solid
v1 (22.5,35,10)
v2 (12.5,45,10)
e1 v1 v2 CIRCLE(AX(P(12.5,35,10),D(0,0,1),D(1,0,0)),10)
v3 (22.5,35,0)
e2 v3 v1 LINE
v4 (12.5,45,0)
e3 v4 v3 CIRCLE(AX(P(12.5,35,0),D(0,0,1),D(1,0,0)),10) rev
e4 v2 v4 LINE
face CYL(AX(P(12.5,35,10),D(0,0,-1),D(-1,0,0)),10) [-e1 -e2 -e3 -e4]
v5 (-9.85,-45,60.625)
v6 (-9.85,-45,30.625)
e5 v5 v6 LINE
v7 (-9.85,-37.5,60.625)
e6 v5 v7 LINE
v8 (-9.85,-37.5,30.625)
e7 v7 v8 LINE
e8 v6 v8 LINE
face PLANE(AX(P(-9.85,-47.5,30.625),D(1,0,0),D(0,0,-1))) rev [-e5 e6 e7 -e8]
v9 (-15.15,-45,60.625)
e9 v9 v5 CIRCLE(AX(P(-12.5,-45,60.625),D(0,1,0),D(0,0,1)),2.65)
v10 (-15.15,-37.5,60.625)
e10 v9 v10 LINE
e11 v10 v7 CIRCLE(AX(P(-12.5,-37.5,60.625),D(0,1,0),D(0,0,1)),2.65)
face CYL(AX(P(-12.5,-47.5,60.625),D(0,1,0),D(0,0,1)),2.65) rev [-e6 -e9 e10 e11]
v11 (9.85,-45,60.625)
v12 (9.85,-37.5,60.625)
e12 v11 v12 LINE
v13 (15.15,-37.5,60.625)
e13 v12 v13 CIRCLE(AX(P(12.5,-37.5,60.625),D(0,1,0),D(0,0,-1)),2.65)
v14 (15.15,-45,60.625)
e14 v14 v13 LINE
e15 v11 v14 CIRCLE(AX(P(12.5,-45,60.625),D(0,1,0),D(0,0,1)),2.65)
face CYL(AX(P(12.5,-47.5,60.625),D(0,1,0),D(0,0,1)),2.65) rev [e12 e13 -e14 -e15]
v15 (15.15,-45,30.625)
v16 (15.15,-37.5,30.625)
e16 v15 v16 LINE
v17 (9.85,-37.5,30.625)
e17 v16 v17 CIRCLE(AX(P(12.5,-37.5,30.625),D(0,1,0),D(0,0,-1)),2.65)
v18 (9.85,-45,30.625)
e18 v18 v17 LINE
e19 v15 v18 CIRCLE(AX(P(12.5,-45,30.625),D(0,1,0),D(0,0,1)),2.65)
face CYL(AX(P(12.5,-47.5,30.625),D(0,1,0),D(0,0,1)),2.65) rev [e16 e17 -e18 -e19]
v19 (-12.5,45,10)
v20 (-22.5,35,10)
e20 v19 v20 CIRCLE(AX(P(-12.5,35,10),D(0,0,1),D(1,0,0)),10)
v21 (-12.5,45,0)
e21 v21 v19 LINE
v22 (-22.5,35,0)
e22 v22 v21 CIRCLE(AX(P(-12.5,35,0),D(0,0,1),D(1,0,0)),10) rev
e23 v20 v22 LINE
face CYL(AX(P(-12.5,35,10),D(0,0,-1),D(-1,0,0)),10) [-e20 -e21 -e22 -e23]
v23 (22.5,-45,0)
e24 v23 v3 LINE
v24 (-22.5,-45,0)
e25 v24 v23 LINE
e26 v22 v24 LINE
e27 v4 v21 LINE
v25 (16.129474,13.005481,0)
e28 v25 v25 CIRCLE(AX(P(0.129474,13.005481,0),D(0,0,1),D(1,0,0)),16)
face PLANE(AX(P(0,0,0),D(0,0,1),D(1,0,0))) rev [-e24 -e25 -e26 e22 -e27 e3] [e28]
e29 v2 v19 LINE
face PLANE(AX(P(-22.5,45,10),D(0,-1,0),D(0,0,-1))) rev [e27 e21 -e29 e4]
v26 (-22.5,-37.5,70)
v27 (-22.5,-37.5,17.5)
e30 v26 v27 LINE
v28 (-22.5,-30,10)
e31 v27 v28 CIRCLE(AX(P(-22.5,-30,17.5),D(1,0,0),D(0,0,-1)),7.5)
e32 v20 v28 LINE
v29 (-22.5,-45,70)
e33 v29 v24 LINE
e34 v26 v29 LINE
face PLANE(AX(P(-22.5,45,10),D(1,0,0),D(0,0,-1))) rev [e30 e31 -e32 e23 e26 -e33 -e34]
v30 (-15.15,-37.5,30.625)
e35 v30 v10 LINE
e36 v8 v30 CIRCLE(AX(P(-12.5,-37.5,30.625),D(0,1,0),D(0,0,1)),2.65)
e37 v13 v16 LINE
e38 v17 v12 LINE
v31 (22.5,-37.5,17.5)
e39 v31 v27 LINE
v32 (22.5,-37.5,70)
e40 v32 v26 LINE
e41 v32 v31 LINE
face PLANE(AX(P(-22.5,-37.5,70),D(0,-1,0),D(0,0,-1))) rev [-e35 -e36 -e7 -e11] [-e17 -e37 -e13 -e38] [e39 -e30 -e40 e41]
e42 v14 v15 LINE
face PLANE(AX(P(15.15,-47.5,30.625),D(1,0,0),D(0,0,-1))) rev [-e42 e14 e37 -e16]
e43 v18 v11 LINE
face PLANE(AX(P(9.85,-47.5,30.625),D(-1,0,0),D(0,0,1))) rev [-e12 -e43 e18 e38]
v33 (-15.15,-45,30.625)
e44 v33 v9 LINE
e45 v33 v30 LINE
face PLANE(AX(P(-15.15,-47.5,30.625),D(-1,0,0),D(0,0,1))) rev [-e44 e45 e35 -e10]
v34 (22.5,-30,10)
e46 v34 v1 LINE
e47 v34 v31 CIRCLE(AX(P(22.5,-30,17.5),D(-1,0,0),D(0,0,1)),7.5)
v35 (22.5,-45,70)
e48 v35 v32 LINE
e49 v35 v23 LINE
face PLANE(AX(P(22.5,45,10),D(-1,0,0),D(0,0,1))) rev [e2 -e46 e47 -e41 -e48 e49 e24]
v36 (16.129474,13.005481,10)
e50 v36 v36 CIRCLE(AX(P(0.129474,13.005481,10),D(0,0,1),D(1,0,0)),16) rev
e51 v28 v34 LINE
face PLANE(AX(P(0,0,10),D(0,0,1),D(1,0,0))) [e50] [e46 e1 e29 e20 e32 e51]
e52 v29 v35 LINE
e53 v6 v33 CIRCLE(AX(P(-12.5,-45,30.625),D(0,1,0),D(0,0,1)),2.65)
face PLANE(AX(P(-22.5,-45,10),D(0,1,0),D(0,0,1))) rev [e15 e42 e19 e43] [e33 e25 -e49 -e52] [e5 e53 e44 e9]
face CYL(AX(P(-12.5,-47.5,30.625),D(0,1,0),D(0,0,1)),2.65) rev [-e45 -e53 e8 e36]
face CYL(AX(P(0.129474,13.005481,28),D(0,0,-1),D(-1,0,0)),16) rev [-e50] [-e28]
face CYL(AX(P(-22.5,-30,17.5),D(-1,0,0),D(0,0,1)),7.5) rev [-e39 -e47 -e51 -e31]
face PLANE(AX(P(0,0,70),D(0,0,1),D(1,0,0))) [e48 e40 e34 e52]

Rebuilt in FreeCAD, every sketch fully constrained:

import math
import FreeCAD as App
import Part
import Sketcher
Q = App.Units.Quantity


def edges_at(feature, points):
    """Names of the edges that pass closest to the given points."""
    edges = feature.Shape.Edges
    near = lambda p: min(range(len(edges)), key=lambda i: edges[i].distToShape(Part.Vertex(*p))[0])
    return sorted({f"Edge{near(p) + 1}" for p in points})

doc = App.newDocument("Part")
body = doc.addObject("PartDesign::Body", "Body")

# Sketch on XY plane
sketch1 = doc.addObject("Sketcher::SketchObject", "Sketch")
body.addObject(sketch1)
sketch1.AttachmentSupport = (doc.XY_Plane, [""])
sketch1.MapMode = "FlatFace"
sketch1.addGeometry([
    Part.LineSegment(App.Vector(-22, 45, 0), App.Vector(-22, -45, 0)),
    Part.LineSegment(App.Vector(-22, -45, 0), App.Vector(22, -45, 0)),
    Part.LineSegment(App.Vector(22, -45, 0), App.Vector(22, 45, 0)),
    Part.LineSegment(App.Vector(22, 45, 0), App.Vector(-22, 45, 0)),
], False)
sketch1.addConstraint([
    Sketcher.Constraint("Coincident", 0, 2, 1, 1),
    Sketcher.Constraint("Coincident", 1, 2, 2, 1),
    Sketcher.Constraint("Coincident", 2, 2, 3, 1),
    Sketcher.Constraint("Coincident", 3, 2, 0, 1),
    Sketcher.Constraint("Vertical", 0),
    Sketcher.Constraint("Horizontal", 1),
    Sketcher.Constraint("Vertical", 2),
    Sketcher.Constraint("Horizontal", 3),
    Sketcher.Constraint("Symmetric", 0, 2, 2, 2, -1, 1),
    Sketcher.Constraint("DistanceX", 1, 1, 1, 2, Q("45 mm")),
    Sketcher.Constraint("DistanceY", 0, 2, 0, 1, Q("90 mm")),
])
pad1 = doc.addObject("PartDesign::Pad", "Pad")
body.addObject(pad1)
pad1.Profile = sketch1
pad1.Length = 10

# Sketch on XY plane
sketch2 = doc.addObject("Sketcher::SketchObject", "Sketch001")
body.addObject(sketch2)
sketch2.AttachmentSupport = (doc.XY_Plane, [""])
sketch2.MapMode = "FlatFace"
sketch2.addGeometry(Part.Circle(App.Vector(0, 13, 0), App.Vector(0, 0, 1), 16), False)
sketch2.addConstraint([
    Sketcher.Constraint("Diameter", 0, Q("32 mm")),
    Sketcher.Constraint("DistanceY", -1, 1, 0, 3, Q("13.005481 mm")),
    Sketcher.Constraint("DistanceX", -1, 1, 0, 3, Q("0.129474 mm")),
])
pocket1 = doc.addObject("PartDesign::Pocket", "Pocket")
body.addObject(pocket1)
pocket1.Profile = sketch2
pocket1.Length = 28
pocket1.Reversed = True
doc.recompute()

fillet = doc.addObject("PartDesign::Fillet", "Fillet")
body.addObject(fillet)
fillet.Base = (pocket1, edges_at(pocket1, [(-22.5, 45, 5), (22.5, 45, 5)]))
fillet.Radius = 10

# Sketch on XY plane
sketch3 = doc.addObject("Sketcher::SketchObject", "Sketch002")
body.addObject(sketch3)
sketch3.AttachmentSupport = (doc.XY_Plane, [""])
sketch3.MapMode = "FlatFace"
sketch3.AttachmentOffset = App.Placement(App.Vector(0, 0, 10), App.Rotation())
sketch3.addGeometry([
    Part.LineSegment(App.Vector(-22, -38, 0), App.Vector(-22, -45, 0)),
    Part.LineSegment(App.Vector(-22, -45, 0), App.Vector(22, -45, 0)),
    Part.LineSegment(App.Vector(22, -45, 0), App.Vector(22, -38, 0)),
    Part.LineSegment(App.Vector(22, -38, 0), App.Vector(-22, -38, 0)),
], False)
sketch3.addConstraint([
    Sketcher.Constraint("Coincident", 0, 2, 1, 1),
    Sketcher.Constraint("Coincident", 1, 2, 2, 1),
    Sketcher.Constraint("Coincident", 2, 2, 3, 1),
    Sketcher.Constraint("Coincident", 3, 2, 0, 1),
    Sketcher.Constraint("Vertical", 0),
    Sketcher.Constraint("Horizontal", 1),
    Sketcher.Constraint("Vertical", 2),
    Sketcher.Constraint("Horizontal", 3),
    Sketcher.Constraint("DistanceX", 1, 1, 1, 2, Q("45 mm")),
    Sketcher.Constraint("DistanceY", 0, 2, 0, 1, Q("7.5 mm")),
    Sketcher.Constraint("DistanceY", 0, 2, -1, 1, Q("45 mm")),
    Sketcher.Constraint("DistanceX", 0, 2, -1, 1, Q("22.5 mm")),
])
pad2 = doc.addObject("PartDesign::Pad", "Pad001")
body.addObject(pad2)
pad2.Profile = sketch3
pad2.Length = 60
doc.recompute()

fillet2 = doc.addObject("PartDesign::Fillet", "Fillet001")
body.addObject(fillet2)
fillet2.Base = (pad2, edges_at(pad2, [(0, -37.5, 10)]))
fillet2.Radius = 7.5

# Sketch on XZ plane
sketch4 = doc.addObject("Sketcher::SketchObject", "Sketch003")
body.addObject(sketch4)
sketch4.AttachmentSupport = (doc.XZ_Plane, [""])
sketch4.MapMode = "FlatFace"
sketch4.AttachmentOffset = App.Placement(App.Vector(0, 0, 37.5), App.Rotation())
sketch4.addGeometry([
    Part.LineSegment(App.Vector(-9.8, 60.6, 0), App.Vector(-9.8, 30.6, 0)),  # 0
    Part.ArcOfCircle(Part.Circle(App.Vector(-12.5, 30.6, 0), App.Vector(0, 0, 1), 2.6), math.radians(180), math.radians(360)),  # 1
    Part.LineSegment(App.Vector(-15.2, 30.6, 0), App.Vector(-15.2, 60.6, 0)),  # 2
    Part.ArcOfCircle(Part.Circle(App.Vector(-12.5, 60.6, 0), App.Vector(0, 0, 1), 2.6), math.radians(0), math.radians(180)),  # 3
    Part.LineSegment(App.Vector(9.8, 30.6, 0), App.Vector(9.8, 60.6, 0)),  # 4
    Part.ArcOfCircle(Part.Circle(App.Vector(12.5, 60.6, 0), App.Vector(0, 0, 1), 2.6), math.radians(0), math.radians(180)),  # 5
    Part.LineSegment(App.Vector(15.2, 60.6, 0), App.Vector(15.2, 30.6, 0)),  # 6
    Part.ArcOfCircle(Part.Circle(App.Vector(12.5, 30.6, 0), App.Vector(0, 0, 1), 2.6), math.radians(180), math.radians(360)),  # 7
], False)
sketch4.addConstraint([
    Sketcher.Constraint("Tangent", 0, 2, 1, 2),
    Sketcher.Constraint("Tangent", 1, 1, 2, 1),
    Sketcher.Constraint("Tangent", 2, 2, 3, 2),
    Sketcher.Constraint("Tangent", 3, 1, 0, 1),
    Sketcher.Constraint("Tangent", 4, 2, 5, 2),
    Sketcher.Constraint("Tangent", 5, 1, 6, 1),
    Sketcher.Constraint("Tangent", 6, 2, 7, 2),
    Sketcher.Constraint("Tangent", 7, 1, 4, 1),
    Sketcher.Constraint("Vertical", 0),
    Sketcher.Constraint("Vertical", 2),
    Sketcher.Constraint("Vertical", 4),
    Sketcher.Constraint("Vertical", 6),
    Sketcher.Constraint("Equal", 3, 5),
    Sketcher.Constraint("Symmetric", 3, 3, 5, 3, -2),
    Sketcher.Constraint("Horizontal", 1, 3, 7, 3),
    Sketcher.Constraint("DistanceY", 0, 2, 0, 1, Q("30 mm")),
    Sketcher.Constraint("Radius", 1, Q("2.65 mm")),
    Sketcher.Constraint("DistanceX", 3, 3, 5, 3, Q("25 mm")),
    Sketcher.Constraint("DistanceY", -1, 1, 1, 3, Q("30.625 mm")),
])
pocket2 = doc.addObject("PartDesign::Pocket", "Pocket001")
body.addObject(pocket2)
pocket2.Profile = sketch4
pocket2.Length = 10
pocket2.Reversed = True

doc.recompute()
